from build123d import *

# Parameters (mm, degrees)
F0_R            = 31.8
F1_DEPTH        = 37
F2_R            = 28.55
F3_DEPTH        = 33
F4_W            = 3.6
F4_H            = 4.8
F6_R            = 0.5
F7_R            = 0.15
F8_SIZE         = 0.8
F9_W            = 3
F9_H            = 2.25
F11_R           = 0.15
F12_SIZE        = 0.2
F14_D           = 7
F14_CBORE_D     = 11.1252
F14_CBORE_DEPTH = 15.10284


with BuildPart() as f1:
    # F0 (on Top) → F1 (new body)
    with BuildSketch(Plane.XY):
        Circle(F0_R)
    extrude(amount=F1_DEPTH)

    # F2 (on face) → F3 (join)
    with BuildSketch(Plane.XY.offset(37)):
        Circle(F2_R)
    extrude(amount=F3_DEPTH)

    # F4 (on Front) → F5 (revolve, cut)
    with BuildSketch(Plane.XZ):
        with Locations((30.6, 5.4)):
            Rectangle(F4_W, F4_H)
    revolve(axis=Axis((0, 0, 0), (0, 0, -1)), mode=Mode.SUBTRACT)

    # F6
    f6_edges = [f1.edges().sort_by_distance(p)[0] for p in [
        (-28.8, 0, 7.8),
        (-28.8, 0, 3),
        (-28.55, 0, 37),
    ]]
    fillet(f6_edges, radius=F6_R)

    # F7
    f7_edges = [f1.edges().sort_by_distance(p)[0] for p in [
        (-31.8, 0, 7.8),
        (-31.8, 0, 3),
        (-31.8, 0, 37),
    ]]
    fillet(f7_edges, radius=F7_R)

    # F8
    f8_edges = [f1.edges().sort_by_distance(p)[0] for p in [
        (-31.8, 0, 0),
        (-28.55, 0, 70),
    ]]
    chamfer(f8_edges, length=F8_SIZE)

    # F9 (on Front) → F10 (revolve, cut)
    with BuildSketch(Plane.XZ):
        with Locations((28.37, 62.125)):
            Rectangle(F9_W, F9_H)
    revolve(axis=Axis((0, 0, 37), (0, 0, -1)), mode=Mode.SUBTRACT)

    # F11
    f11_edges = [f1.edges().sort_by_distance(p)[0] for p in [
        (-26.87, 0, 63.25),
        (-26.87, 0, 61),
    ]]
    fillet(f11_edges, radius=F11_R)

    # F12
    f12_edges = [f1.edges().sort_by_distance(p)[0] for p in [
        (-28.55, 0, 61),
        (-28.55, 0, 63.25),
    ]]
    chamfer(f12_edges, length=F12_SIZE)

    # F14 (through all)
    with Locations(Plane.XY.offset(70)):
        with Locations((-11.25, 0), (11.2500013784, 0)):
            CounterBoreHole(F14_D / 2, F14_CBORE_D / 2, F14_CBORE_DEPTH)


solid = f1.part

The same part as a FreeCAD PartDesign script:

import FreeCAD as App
import Part
import Sketcher
from FreeCAD import Vector
Q = App.Units.Quantity


def edges_at(feature, points):
    """Names of the edges that pass closest to the given points."""
    edges = feature.Shape.Edges
    near = lambda p: min(range(len(edges)), key=lambda i: edges[i].distToShape(Part.Vertex(*p))[0])
    return sorted({f"Edge{near(p) + 1}" for p in points})


def add_polygon(sketch, points):
    """Adds a closed chain of lines whose ends are joined by coincident constraints."""
    first, n = sketch.GeometryCount, len(points)
    for a, b in zip(points, points[1:] + points[:1]):
        sketch.addGeometry(Part.LineSegment(App.Vector(*a, 0), App.Vector(*b, 0)), False)
    for i in range(n):
        sketch.addConstraint(Sketcher.Constraint("Coincident", first + i, 2, first + (i + 1) % n, 1))

doc = App.newDocument("Part")
body = doc.addObject("PartDesign::Body", "Body")

sketch1 = doc.addObject("Sketcher::SketchObject", "Sketch")
body.addObject(sketch1)
sketch1.AttachmentSupport = (doc.XY_Plane, [""])
sketch1.MapMode = "FlatFace"
sketch1.addGeometry(Part.Circle(Vector(0, 0, 0), Vector(0, 0, 1), 32), False)
sketch1.addConstraint([
    Sketcher.Constraint("Coincident", 0, 3, -1, 1),
    Sketcher.Constraint("Diameter", 0, Q("63.6 mm")),
])
pad1 = doc.addObject("PartDesign::Pad", "Pad")
body.addObject(pad1)
pad1.Profile = sketch1
pad1.Length = 37

sketch2 = doc.addObject("Sketcher::SketchObject", "Sketch001")
body.addObject(sketch2)
sketch2.AttachmentSupport = (doc.XY_Plane, [""])
sketch2.MapMode = "FlatFace"
sketch2.AttachmentOffset = App.Placement(Vector(0, 0, 37), App.Rotation())
sketch2.addGeometry(Part.Circle(Vector(0, 0, 0), Vector(0, 0, 1), 29), False)
sketch2.addConstraint([
    Sketcher.Constraint("Coincident", 0, 3, -1, 1),
    Sketcher.Constraint("Diameter", 0, Q("57.1 mm")),
])
pad2 = doc.addObject("PartDesign::Pad", "Pad001")
body.addObject(pad2)
pad2.Profile = sketch2
pad2.Length = 33

sketch3 = doc.addObject("Sketcher::SketchObject", "Sketch002")
body.addObject(sketch3)
sketch3.AttachmentSupport = (doc.XZ_Plane, [""])
sketch3.MapMode = "FlatFace"
add_polygon(sketch3, [(28.8, 7.8), (28.8, 3), (32.4, 3), (32.4, 7.8)])
sketch3.addConstraint([
    Sketcher.Constraint("Vertical", 0),
    Sketcher.Constraint("Horizontal", 1),
    Sketcher.Constraint("Vertical", 2),
    Sketcher.Constraint("Horizontal", 3),
    Sketcher.Constraint("DistanceX", 1, 1, 1, 2, Q("3.6 mm")),
    Sketcher.Constraint("DistanceY", 0, 2, 0, 1, Q("4.8 mm")),
    Sketcher.Constraint("DistanceY", -1, 1, 0, 2, Q("3 mm")),
    Sketcher.Constraint("DistanceX", -1, 1, 0, 2, Q("28.8 mm")),
])
groove = doc.addObject("PartDesign::Groove", "Groove")
body.addObject(groove)
groove.Profile = sketch3
groove.ReferenceAxis = (sketch3, ["V_Axis"])
groove.Angle = 360
doc.recompute()

fillet = doc.addObject("PartDesign::Fillet", "Fillet")
body.addObject(fillet)
fillet.Base = (groove, edges_at(groove, [(-28.8, 0, 7.8), (-28.8, 0, 3), (-28.55, 0, 37)]))
fillet.Radius = 0.5
doc.recompute()

fillet2 = doc.addObject("PartDesign::Fillet", "Fillet001")
body.addObject(fillet2)
fillet2.Base = (fillet, edges_at(fillet, [(-31.8, 0, 7.8), (-31.8, 0, 3), (-31.8, 0, 37)]))
fillet2.Radius = 0.15
doc.recompute()

chamfer = doc.addObject("PartDesign::Chamfer", "Chamfer")
body.addObject(chamfer)
chamfer.Base = (fillet2, edges_at(fillet2, [(-31.8, 0, 0), (-28.55, 0, 70)]))
chamfer.Size = 0.8

sketch4 = doc.addObject("Sketcher::SketchObject", "Sketch003")
body.addObject(sketch4)
sketch4.AttachmentSupport = (doc.XZ_Plane, [""])
sketch4.MapMode = "FlatFace"
add_polygon(sketch4, [(26.9, 63.2), (26.9, 61), (29.9, 61), (29.9, 63.2)])
sketch4.addConstraint([
    Sketcher.Constraint("Vertical", 0),
    Sketcher.Constraint("Horizontal", 1),
    Sketcher.Constraint("Vertical", 2),
    Sketcher.Constraint("Horizontal", 3),
    Sketcher.Constraint("DistanceX", 1, 1, 1, 2, Q("3 mm")),
    Sketcher.Constraint("DistanceY", -1, 1, 0, 2, Q("61 mm")),
    Sketcher.Constraint("DistanceY", 0, 2, 0, 1, Q("2.25 mm")),
    Sketcher.Constraint("DistanceX", -1, 1, 0, 2, Q("26.87 mm")),
])
groove2 = doc.addObject("PartDesign::Groove", "Groove001")
body.addObject(groove2)
groove2.Profile = sketch4
groove2.ReferenceAxis = (sketch4, ["V_Axis"])
groove2.Angle = 360
doc.recompute()

fillet3 = doc.addObject("PartDesign::Fillet", "Fillet002")
body.addObject(fillet3)
fillet3.Base = (groove2, edges_at(groove2, [(-26.87, 0, 63.25), (-26.87, 0, 61)]))
fillet3.Radius = 0.15
doc.recompute()

chamfer2 = doc.addObject("PartDesign::Chamfer", "Chamfer001")
body.addObject(chamfer2)
chamfer2.Base = (fillet3, edges_at(fillet3, [(-28.55, 0, 61), (-28.55, 0, 63.25)]))
chamfer2.Size = 0.2

sketch5 = doc.addObject("Sketcher::SketchObject", "Sketch004")
body.addObject(sketch5)
sketch5.AttachmentSupport = (doc.XY_Plane, [""])
sketch5.MapMode = "FlatFace"
sketch5.AttachmentOffset = App.Placement(Vector(0, 0, 70), App.Rotation())
sketch5.addGeometry([
    Part.Circle(Vector(-11.2, 0, 0), Vector(0, 0, 1), 3.5),
    Part.Circle(Vector(11.3, 0, 0), Vector(0, 0, 1), 3.5),
], False)
sketch5.addConstraint([
    Sketcher.Constraint("Equal", 0, 1),
    Sketcher.Constraint("Symmetric", 0, 3, 1, 3, -1, 1),
    Sketcher.Constraint("PointOnObject", 0, 3, -1),
    Sketcher.Constraint("Diameter", 0, Q("7 mm")),
    Sketcher.Constraint("DistanceX", 0, 3, 1, 3, Q("22.500001 mm")),
])
doc.recompute()
hole = doc.addObject("PartDesign::Hole", "Hole")
body.addObject(hole)
hole.Profile = sketch5
hole.ThreadType = "None"
hole.Diameter = 7
hole.DepthType = "ThroughAll"
hole.HoleCutType = "Counterbore"
hole.HoleCutDiameter = 11.1252
hole.HoleCutDepth = 15.10284

doc.recompute()
